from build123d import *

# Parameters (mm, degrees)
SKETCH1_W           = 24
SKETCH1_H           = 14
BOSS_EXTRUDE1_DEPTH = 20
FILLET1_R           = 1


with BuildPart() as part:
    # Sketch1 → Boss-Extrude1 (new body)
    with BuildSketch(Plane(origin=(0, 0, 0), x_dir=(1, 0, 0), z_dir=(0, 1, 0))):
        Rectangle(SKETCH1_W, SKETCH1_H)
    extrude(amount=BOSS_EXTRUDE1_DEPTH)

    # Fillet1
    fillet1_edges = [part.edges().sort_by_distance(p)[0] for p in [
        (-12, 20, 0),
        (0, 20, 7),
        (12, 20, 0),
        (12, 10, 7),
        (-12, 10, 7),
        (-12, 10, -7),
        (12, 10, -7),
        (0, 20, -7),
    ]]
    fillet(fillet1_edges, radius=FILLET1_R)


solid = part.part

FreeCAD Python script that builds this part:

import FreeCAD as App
import Part
import Sketcher

V = App.Vector


def edges_at(feature, points):
    """Names of the edges that pass closest to the given points."""
    edges = feature.Shape.Edges
    near = lambda p: min(range(len(edges)), key=lambda i: edges[i].distToShape(Part.Vertex(*p))[0])
    return sorted({f"Edge{near(p) + 1}" for p in points})

doc = App.newDocument("Part")
body = doc.addObject("PartDesign::Body", "Body")

# Sketch on XZ plane
sketch1 = doc.addObject("Sketcher::SketchObject", "Sketch")
body.addObject(sketch1)
sketch1.AttachmentSupport = (doc.XZ_Plane, [""])
sketch1.MapMode = "FlatFace"
sketch1.addGeometry([
    Part.LineSegment(V(-12, -7, 0), V(-12, 7, 0)),
    Part.LineSegment(V(-12, 7, 0), V(12, 7, 0)),
    Part.LineSegment(V(12, 7, 0), V(12, -7, 0)),
    Part.LineSegment(V(12, -7, 0), V(-12, -7, 0)),
], False)
sketch1.addConstraint([
    Sketcher.Constraint("Coincident", 0, 2, 1, 1),
    Sketcher.Constraint("Coincident", 1, 2, 2, 1),
    Sketcher.Constraint("Coincident", 2, 2, 3, 1),
    Sketcher.Constraint("Coincident", 3, 2, 0, 1),
    Sketcher.Constraint("Vertical", 0),
    Sketcher.Constraint("Horizontal", 1),
    Sketcher.Constraint("Vertical", 2),
    Sketcher.Constraint("Horizontal", 3),
    Sketcher.Constraint("Symmetric", 0, 2, 2, 2, -1, 1),
    Sketcher.Constraint("DistanceX", 1, 1, 1, 2, 24.0),
    Sketcher.Constraint("DistanceY", 0, 1, 0, 2, 14.0),
])
pad1 = doc.addObject("PartDesign::Pad", "Pad")
body.addObject(pad1)
pad1.Profile = sketch1
pad1.Length = 20
pad1.Reversed = True
doc.recompute()

fillet = doc.addObject("PartDesign::Fillet", "Fillet")
body.addObject(fillet)
fillet.Base = (pad1, edges_at(pad1, [
    (-12, 20, 0),
    (0, 20, 7),
    (12, 20, 0),
    (12, 10, 7),
    (-12, 10, 7),
    (-12, 10, -7),
    (12, 10, -7),
    (0, 20, -7),
]))
fillet.Radius = 1

doc.recompute()
